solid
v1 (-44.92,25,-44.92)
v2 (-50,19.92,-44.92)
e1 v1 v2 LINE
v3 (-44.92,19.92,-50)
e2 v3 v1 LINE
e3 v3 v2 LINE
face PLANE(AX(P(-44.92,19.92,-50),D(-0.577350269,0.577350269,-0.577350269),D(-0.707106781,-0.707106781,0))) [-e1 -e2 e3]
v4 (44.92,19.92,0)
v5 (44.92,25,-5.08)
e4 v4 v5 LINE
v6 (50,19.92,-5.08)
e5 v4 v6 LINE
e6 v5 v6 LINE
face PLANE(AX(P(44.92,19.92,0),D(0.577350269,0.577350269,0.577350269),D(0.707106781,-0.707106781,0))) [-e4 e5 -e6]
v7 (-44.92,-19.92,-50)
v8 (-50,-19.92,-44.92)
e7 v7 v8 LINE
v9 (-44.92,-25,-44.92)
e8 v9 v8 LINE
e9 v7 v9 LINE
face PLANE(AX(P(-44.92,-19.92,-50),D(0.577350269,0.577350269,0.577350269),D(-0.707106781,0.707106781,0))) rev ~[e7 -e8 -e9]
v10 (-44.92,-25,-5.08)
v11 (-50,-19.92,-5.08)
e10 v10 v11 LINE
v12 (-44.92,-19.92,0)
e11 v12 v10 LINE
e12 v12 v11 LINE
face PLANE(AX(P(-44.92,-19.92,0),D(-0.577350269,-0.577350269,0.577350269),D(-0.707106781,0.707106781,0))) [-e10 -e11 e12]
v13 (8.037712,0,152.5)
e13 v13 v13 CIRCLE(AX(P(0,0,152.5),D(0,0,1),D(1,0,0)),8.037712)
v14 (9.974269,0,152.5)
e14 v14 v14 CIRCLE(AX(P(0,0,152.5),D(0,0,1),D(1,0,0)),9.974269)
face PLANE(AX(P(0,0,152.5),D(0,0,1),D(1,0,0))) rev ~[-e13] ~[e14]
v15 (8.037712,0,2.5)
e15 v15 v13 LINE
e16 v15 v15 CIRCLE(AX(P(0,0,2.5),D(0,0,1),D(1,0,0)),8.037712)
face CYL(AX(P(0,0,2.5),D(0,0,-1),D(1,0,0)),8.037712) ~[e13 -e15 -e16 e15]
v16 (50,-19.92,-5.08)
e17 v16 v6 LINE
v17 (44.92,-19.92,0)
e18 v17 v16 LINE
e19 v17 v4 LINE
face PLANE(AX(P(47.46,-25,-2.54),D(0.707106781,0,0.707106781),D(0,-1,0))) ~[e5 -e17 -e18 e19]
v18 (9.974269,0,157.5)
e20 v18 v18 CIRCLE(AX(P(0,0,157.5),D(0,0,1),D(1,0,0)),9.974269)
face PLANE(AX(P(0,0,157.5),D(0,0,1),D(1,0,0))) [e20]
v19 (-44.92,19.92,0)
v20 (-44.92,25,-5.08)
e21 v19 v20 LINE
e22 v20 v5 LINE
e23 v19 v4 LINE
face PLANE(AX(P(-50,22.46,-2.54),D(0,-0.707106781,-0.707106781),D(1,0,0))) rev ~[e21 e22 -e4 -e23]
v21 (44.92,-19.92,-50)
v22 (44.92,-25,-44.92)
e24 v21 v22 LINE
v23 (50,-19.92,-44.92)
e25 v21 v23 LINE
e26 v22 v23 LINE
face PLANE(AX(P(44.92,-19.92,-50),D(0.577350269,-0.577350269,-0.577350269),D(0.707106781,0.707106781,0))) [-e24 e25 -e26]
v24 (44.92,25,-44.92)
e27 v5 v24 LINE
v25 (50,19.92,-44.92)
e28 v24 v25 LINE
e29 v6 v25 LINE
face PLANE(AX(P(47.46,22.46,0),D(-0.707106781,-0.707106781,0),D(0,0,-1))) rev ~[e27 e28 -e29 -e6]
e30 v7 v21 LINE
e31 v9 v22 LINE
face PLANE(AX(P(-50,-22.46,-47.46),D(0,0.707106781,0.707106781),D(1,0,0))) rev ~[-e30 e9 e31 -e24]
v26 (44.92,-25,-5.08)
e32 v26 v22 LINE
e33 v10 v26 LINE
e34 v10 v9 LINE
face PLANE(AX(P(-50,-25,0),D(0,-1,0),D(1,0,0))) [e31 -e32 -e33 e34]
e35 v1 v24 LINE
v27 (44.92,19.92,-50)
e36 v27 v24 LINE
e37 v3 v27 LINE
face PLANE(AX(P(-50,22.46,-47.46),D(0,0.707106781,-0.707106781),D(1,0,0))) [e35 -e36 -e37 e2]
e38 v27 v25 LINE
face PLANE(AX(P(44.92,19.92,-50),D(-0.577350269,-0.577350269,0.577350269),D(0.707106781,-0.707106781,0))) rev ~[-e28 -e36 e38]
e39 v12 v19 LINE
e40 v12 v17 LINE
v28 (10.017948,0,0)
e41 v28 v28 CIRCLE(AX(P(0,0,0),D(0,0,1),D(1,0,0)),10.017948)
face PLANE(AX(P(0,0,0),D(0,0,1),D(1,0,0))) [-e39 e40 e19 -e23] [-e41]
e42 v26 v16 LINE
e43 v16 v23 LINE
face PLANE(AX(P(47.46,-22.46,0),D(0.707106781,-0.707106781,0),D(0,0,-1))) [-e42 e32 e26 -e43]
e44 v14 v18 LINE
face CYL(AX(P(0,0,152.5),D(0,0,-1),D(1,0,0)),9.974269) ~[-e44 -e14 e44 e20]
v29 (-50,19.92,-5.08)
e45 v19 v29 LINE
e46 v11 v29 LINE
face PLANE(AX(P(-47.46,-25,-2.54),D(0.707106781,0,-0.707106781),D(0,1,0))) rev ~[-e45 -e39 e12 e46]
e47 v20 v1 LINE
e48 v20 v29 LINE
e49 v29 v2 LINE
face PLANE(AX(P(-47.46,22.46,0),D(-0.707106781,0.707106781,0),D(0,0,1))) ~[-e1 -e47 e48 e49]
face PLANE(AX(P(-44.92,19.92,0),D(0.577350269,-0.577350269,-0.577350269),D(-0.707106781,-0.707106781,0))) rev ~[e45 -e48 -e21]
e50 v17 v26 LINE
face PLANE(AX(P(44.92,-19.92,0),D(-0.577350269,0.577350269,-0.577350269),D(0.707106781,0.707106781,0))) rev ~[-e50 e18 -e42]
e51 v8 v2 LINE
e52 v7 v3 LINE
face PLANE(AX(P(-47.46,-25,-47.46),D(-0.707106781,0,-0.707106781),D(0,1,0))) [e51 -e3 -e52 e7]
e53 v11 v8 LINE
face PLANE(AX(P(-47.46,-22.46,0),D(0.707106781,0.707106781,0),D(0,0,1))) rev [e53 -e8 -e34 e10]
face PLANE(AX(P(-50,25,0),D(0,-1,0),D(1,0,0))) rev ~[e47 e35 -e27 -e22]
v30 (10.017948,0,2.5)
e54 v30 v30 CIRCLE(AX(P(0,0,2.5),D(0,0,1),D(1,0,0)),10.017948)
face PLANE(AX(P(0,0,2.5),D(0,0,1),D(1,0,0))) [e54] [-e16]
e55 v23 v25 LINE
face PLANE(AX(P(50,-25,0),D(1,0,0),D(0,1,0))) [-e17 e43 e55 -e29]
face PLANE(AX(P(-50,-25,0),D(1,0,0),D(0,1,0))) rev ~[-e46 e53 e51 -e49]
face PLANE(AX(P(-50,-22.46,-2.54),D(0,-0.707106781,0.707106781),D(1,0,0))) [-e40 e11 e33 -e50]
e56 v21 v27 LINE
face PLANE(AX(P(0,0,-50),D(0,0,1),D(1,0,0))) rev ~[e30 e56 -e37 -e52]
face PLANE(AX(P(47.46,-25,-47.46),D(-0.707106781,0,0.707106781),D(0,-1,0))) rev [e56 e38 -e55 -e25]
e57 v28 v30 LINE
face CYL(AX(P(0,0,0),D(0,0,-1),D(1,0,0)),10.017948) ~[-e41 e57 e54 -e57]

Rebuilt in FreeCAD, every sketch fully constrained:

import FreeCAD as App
import Part
import Sketcher


def edges_at(feature, points):
    """Names of the edges that pass closest to the given points."""
    edges = feature.Shape.Edges
    near = lambda p: min(range(len(edges)), key=lambda i: edges[i].distToShape(Part.Vertex(*p))[0])
    return sorted({f"Edge{near(p) + 1}" for p in points})


def add_polygon(sketch, points):
    """Adds a closed chain of lines whose ends are joined by coincident constraints."""
    first, n = sketch.GeometryCount, len(points)
    for a, b in zip(points, points[1:] + points[:1]):
        sketch.addGeometry(Part.LineSegment(App.Vector(*a, 0), App.Vector(*b, 0)), False)
    for i in range(n):
        sketch.addConstraint(Sketcher.Constraint("Coincident", first + i, 2, first + (i + 1) % n, 1))

doc = App.newDocument("Part")
body = doc.addObject("PartDesign::Body", "Body")

# Sketch on XY plane
sketch1 = body.newObject("Sketcher::SketchObject", "Sketch")
sketch1.AttachmentSupport = (doc.getObject("XY_Plane"), [""])
sketch1.MapMode = "FlatFace"
sketch1.addGeometry(Part.Circle(App.Vector(0, 0, 0), App.Vector(0, 0, 1), 10), False)
sketch1.addConstraint([
    Sketcher.Constraint("Coincident", 0, 3, -1, 1),
    Sketcher.Constraint("Diameter", 0, 20.035896),
])
pad1 = body.newObject("PartDesign::Pad", "Pad")
pad1.Profile = sketch1
pad1.Length = 2.5

# Sketch on XY plane
sketch2 = body.newObject("Sketcher::SketchObject", "Sketch001")
sketch2.AttachmentSupport = (doc.getObject("XY_Plane"), [""])
sketch2.MapMode = "FlatFace"
sketch2.AttachmentOffset = App.Placement(App.Vector(0, 0, 2.5), App.Rotation())
sketch2.addGeometry(Part.Circle(App.Vector(0, 0, 0), App.Vector(0, 0, 1), 8), False)
sketch2.addConstraint([
    Sketcher.Constraint("Coincident", 0, 3, -1, 1),
    Sketcher.Constraint("Diameter", 0, 16.075424),
])
pad2 = body.newObject("PartDesign::Pad", "Pad001")
pad2.Profile = sketch2
pad2.Length = 150

# Sketch on XY plane
sketch3 = body.newObject("Sketcher::SketchObject", "Sketch002")
sketch3.AttachmentSupport = (doc.getObject("XY_Plane"), [""])
sketch3.MapMode = "FlatFace"
sketch3.AttachmentOffset = App.Placement(App.Vector(0, 0, 152.5), App.Rotation())
sketch3.addGeometry(Part.Circle(App.Vector(0, 0, 0), App.Vector(0, 0, 1), 10), False)
sketch3.addConstraint([
    Sketcher.Constraint("Coincident", 0, 3, -1, 1),
    Sketcher.Constraint("Diameter", 0, 19.948538),
])
pad3 = body.newObject("PartDesign::Pad", "Pad002")
pad3.Profile = sketch3
pad3.Length = 5

# Sketch on XY plane
sketch4 = body.newObject("Sketcher::SketchObject", "Sketch003")
sketch4.AttachmentSupport = (doc.getObject("XY_Plane"), [""])
sketch4.MapMode = "FlatFace"
add_polygon(sketch4, [(-50, 25), (-50, -25), (50, -25), (50, 25)])  # lines 0-3
sketch4.addConstraint([
    Sketcher.Constraint("Vertical", 0),
    Sketcher.Constraint("Horizontal", 1),
    Sketcher.Constraint("Vertical", 2),
    Sketcher.Constraint("Horizontal", 3),
    Sketcher.Constraint("Symmetric", 0, 2, 2, 2, -1, 1),
    Sketcher.Constraint("DistanceX", 1, 1, 1, 2, 100.0),
    Sketcher.Constraint("DistanceY", 0, 2, 0, 1, 50.0),
])
pad4 = body.newObject("PartDesign::Pad", "Pad003")
pad4.Profile = sketch4
pad4.Length = 50
pad4.Reversed = True
doc.recompute()

chamfer = body.newObject("PartDesign::Chamfer", "Chamfer")
chamfer.Base = (pad4, edges_at(pad4, [
    (-50, -25, -25),
    (50, -25, -25),
    (0, -25, 0),
    (0, -25, -50),
    (50, 25, -25),
    (-50, 25, -25),
    (0, 25, 0),
    (0, 25, -50),
    (-50, 0, -50),
    (50, 0, -50),
    (50, 0, 0),
    (-50, 0, 0),
]))
chamfer.Size = 5.08

doc.recompute()
